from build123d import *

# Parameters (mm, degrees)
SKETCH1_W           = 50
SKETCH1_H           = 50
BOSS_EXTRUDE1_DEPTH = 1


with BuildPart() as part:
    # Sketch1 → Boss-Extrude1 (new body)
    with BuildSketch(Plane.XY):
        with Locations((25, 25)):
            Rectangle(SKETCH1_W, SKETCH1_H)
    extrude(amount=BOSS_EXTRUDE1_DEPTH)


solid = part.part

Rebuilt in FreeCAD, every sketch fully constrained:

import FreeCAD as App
import Part
import Sketcher
Q = App.Units.Quantity

doc = App.newDocument("Part")
params = doc.addObject("Spreadsheet::Sheet", "Params")
for row, (alias, value) in enumerate([
    ("sketch1_width", "50 mm"),
    ("pad1_length", "1 mm"),
], start=1):
    params.set(f"A{row}", alias)
    params.set(f"B{row}", "=" + value)
    params.setAlias(f"B{row}", alias)

body = doc.addObject("PartDesign::Body", "Body")

# Sketch on XY plane
sketch1 = doc.addObject("Sketcher::SketchObject", "Sketch")
body.addObject(sketch1)
sketch1.AttachmentSupport = (doc.XY_Plane, [""])
sketch1.MapMode = "FlatFace"
sketch1.addGeometry([
    Part.LineSegment(App.Vector(0, 50, 0), App.Vector(0, 0, 0)),
    Part.LineSegment(App.Vector(0, 0, 0), App.Vector(50, 0, 0)),
    Part.LineSegment(App.Vector(50, 0, 0), App.Vector(50, 50, 0)),
    Part.LineSegment(App.Vector(50, 50, 0), App.Vector(0, 50, 0)),
], False)
sketch1.addConstraint([
    Sketcher.Constraint("Coincident", 0, 2, 1, 1),
    Sketcher.Constraint("Coincident", 1, 2, 2, 1),
    Sketcher.Constraint("Coincident", 2, 2, 3, 1),
    Sketcher.Constraint("Coincident", 3, 2, 0, 1),
    Sketcher.Constraint("Vertical", 0),
    Sketcher.Constraint("Horizontal", 1),
    Sketcher.Constraint("Vertical", 2),
    Sketcher.Constraint("Horizontal", 3),
    Sketcher.Constraint("Coincident", 0, 2, -1, 1),
    Sketcher.Constraint("Equal", 3, 0),
    Sketcher.Constraint("DistanceX", 1, 1, 1, 2, Q("50 mm")),
])
sketch1.setExpression("Constraints[10]", "Params.sketch1_width")
pad1 = doc.addObject("PartDesign::Pad", "Pad")
body.addObject(pad1)
pad1.Profile = sketch1
pad1.setExpression("Length", "Params.pad1_length")

doc.recompute()
